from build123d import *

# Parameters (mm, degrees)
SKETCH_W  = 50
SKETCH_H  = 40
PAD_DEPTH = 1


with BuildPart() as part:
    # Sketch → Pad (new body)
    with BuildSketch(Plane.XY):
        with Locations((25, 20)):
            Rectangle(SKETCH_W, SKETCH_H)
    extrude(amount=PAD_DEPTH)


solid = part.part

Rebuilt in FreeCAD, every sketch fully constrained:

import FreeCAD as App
import Part
import Sketcher
from FreeCAD import Vector


def add_polygon(sketch, points):
    """Adds a closed chain of lines whose ends are joined by coincident constraints."""
    first, n = sketch.GeometryCount, len(points)
    for a, b in zip(points, points[1:] + points[:1]):
        sketch.addGeometry(Part.LineSegment(App.Vector(*a, 0), App.Vector(*b, 0)), False)
    for i in range(n):
        sketch.addConstraint(Sketcher.Constraint("Coincident", first + i, 2, first + (i + 1) % n, 1))

doc = App.newDocument("Part")
body = doc.addObject("PartDesign::Body", "Body")

# Sketch on XY plane
sketch1 = body.newObject("Sketcher::SketchObject", "Sketch")
sketch1.AttachmentSupport = (doc.getObject("XY_Plane"), [""])
sketch1.MapMode = "FlatFace"
add_polygon(sketch1, [(0, 40), (0, 0), (50, 0), (50, 40)])  # lines 0-3
sketch1.addConstraint([
    Sketcher.Constraint("Vertical", 0),
    Sketcher.Constraint("Horizontal", 1),
    Sketcher.Constraint("Vertical", 2),
    Sketcher.Constraint("Horizontal", 3),
    Sketcher.Constraint("Coincident", 0, 2, -1, 1),
    Sketcher.Constraint("DistanceX", 1, 1, 1, 2, 50.0),
    Sketcher.Constraint("DistanceY", 0, 2, 0, 1, 40.0),
])
pad1 = body.newObject("PartDesign::Pad", "Pad")
pad1.Profile = sketch1
pad1.Length = 1

doc.recompute()
